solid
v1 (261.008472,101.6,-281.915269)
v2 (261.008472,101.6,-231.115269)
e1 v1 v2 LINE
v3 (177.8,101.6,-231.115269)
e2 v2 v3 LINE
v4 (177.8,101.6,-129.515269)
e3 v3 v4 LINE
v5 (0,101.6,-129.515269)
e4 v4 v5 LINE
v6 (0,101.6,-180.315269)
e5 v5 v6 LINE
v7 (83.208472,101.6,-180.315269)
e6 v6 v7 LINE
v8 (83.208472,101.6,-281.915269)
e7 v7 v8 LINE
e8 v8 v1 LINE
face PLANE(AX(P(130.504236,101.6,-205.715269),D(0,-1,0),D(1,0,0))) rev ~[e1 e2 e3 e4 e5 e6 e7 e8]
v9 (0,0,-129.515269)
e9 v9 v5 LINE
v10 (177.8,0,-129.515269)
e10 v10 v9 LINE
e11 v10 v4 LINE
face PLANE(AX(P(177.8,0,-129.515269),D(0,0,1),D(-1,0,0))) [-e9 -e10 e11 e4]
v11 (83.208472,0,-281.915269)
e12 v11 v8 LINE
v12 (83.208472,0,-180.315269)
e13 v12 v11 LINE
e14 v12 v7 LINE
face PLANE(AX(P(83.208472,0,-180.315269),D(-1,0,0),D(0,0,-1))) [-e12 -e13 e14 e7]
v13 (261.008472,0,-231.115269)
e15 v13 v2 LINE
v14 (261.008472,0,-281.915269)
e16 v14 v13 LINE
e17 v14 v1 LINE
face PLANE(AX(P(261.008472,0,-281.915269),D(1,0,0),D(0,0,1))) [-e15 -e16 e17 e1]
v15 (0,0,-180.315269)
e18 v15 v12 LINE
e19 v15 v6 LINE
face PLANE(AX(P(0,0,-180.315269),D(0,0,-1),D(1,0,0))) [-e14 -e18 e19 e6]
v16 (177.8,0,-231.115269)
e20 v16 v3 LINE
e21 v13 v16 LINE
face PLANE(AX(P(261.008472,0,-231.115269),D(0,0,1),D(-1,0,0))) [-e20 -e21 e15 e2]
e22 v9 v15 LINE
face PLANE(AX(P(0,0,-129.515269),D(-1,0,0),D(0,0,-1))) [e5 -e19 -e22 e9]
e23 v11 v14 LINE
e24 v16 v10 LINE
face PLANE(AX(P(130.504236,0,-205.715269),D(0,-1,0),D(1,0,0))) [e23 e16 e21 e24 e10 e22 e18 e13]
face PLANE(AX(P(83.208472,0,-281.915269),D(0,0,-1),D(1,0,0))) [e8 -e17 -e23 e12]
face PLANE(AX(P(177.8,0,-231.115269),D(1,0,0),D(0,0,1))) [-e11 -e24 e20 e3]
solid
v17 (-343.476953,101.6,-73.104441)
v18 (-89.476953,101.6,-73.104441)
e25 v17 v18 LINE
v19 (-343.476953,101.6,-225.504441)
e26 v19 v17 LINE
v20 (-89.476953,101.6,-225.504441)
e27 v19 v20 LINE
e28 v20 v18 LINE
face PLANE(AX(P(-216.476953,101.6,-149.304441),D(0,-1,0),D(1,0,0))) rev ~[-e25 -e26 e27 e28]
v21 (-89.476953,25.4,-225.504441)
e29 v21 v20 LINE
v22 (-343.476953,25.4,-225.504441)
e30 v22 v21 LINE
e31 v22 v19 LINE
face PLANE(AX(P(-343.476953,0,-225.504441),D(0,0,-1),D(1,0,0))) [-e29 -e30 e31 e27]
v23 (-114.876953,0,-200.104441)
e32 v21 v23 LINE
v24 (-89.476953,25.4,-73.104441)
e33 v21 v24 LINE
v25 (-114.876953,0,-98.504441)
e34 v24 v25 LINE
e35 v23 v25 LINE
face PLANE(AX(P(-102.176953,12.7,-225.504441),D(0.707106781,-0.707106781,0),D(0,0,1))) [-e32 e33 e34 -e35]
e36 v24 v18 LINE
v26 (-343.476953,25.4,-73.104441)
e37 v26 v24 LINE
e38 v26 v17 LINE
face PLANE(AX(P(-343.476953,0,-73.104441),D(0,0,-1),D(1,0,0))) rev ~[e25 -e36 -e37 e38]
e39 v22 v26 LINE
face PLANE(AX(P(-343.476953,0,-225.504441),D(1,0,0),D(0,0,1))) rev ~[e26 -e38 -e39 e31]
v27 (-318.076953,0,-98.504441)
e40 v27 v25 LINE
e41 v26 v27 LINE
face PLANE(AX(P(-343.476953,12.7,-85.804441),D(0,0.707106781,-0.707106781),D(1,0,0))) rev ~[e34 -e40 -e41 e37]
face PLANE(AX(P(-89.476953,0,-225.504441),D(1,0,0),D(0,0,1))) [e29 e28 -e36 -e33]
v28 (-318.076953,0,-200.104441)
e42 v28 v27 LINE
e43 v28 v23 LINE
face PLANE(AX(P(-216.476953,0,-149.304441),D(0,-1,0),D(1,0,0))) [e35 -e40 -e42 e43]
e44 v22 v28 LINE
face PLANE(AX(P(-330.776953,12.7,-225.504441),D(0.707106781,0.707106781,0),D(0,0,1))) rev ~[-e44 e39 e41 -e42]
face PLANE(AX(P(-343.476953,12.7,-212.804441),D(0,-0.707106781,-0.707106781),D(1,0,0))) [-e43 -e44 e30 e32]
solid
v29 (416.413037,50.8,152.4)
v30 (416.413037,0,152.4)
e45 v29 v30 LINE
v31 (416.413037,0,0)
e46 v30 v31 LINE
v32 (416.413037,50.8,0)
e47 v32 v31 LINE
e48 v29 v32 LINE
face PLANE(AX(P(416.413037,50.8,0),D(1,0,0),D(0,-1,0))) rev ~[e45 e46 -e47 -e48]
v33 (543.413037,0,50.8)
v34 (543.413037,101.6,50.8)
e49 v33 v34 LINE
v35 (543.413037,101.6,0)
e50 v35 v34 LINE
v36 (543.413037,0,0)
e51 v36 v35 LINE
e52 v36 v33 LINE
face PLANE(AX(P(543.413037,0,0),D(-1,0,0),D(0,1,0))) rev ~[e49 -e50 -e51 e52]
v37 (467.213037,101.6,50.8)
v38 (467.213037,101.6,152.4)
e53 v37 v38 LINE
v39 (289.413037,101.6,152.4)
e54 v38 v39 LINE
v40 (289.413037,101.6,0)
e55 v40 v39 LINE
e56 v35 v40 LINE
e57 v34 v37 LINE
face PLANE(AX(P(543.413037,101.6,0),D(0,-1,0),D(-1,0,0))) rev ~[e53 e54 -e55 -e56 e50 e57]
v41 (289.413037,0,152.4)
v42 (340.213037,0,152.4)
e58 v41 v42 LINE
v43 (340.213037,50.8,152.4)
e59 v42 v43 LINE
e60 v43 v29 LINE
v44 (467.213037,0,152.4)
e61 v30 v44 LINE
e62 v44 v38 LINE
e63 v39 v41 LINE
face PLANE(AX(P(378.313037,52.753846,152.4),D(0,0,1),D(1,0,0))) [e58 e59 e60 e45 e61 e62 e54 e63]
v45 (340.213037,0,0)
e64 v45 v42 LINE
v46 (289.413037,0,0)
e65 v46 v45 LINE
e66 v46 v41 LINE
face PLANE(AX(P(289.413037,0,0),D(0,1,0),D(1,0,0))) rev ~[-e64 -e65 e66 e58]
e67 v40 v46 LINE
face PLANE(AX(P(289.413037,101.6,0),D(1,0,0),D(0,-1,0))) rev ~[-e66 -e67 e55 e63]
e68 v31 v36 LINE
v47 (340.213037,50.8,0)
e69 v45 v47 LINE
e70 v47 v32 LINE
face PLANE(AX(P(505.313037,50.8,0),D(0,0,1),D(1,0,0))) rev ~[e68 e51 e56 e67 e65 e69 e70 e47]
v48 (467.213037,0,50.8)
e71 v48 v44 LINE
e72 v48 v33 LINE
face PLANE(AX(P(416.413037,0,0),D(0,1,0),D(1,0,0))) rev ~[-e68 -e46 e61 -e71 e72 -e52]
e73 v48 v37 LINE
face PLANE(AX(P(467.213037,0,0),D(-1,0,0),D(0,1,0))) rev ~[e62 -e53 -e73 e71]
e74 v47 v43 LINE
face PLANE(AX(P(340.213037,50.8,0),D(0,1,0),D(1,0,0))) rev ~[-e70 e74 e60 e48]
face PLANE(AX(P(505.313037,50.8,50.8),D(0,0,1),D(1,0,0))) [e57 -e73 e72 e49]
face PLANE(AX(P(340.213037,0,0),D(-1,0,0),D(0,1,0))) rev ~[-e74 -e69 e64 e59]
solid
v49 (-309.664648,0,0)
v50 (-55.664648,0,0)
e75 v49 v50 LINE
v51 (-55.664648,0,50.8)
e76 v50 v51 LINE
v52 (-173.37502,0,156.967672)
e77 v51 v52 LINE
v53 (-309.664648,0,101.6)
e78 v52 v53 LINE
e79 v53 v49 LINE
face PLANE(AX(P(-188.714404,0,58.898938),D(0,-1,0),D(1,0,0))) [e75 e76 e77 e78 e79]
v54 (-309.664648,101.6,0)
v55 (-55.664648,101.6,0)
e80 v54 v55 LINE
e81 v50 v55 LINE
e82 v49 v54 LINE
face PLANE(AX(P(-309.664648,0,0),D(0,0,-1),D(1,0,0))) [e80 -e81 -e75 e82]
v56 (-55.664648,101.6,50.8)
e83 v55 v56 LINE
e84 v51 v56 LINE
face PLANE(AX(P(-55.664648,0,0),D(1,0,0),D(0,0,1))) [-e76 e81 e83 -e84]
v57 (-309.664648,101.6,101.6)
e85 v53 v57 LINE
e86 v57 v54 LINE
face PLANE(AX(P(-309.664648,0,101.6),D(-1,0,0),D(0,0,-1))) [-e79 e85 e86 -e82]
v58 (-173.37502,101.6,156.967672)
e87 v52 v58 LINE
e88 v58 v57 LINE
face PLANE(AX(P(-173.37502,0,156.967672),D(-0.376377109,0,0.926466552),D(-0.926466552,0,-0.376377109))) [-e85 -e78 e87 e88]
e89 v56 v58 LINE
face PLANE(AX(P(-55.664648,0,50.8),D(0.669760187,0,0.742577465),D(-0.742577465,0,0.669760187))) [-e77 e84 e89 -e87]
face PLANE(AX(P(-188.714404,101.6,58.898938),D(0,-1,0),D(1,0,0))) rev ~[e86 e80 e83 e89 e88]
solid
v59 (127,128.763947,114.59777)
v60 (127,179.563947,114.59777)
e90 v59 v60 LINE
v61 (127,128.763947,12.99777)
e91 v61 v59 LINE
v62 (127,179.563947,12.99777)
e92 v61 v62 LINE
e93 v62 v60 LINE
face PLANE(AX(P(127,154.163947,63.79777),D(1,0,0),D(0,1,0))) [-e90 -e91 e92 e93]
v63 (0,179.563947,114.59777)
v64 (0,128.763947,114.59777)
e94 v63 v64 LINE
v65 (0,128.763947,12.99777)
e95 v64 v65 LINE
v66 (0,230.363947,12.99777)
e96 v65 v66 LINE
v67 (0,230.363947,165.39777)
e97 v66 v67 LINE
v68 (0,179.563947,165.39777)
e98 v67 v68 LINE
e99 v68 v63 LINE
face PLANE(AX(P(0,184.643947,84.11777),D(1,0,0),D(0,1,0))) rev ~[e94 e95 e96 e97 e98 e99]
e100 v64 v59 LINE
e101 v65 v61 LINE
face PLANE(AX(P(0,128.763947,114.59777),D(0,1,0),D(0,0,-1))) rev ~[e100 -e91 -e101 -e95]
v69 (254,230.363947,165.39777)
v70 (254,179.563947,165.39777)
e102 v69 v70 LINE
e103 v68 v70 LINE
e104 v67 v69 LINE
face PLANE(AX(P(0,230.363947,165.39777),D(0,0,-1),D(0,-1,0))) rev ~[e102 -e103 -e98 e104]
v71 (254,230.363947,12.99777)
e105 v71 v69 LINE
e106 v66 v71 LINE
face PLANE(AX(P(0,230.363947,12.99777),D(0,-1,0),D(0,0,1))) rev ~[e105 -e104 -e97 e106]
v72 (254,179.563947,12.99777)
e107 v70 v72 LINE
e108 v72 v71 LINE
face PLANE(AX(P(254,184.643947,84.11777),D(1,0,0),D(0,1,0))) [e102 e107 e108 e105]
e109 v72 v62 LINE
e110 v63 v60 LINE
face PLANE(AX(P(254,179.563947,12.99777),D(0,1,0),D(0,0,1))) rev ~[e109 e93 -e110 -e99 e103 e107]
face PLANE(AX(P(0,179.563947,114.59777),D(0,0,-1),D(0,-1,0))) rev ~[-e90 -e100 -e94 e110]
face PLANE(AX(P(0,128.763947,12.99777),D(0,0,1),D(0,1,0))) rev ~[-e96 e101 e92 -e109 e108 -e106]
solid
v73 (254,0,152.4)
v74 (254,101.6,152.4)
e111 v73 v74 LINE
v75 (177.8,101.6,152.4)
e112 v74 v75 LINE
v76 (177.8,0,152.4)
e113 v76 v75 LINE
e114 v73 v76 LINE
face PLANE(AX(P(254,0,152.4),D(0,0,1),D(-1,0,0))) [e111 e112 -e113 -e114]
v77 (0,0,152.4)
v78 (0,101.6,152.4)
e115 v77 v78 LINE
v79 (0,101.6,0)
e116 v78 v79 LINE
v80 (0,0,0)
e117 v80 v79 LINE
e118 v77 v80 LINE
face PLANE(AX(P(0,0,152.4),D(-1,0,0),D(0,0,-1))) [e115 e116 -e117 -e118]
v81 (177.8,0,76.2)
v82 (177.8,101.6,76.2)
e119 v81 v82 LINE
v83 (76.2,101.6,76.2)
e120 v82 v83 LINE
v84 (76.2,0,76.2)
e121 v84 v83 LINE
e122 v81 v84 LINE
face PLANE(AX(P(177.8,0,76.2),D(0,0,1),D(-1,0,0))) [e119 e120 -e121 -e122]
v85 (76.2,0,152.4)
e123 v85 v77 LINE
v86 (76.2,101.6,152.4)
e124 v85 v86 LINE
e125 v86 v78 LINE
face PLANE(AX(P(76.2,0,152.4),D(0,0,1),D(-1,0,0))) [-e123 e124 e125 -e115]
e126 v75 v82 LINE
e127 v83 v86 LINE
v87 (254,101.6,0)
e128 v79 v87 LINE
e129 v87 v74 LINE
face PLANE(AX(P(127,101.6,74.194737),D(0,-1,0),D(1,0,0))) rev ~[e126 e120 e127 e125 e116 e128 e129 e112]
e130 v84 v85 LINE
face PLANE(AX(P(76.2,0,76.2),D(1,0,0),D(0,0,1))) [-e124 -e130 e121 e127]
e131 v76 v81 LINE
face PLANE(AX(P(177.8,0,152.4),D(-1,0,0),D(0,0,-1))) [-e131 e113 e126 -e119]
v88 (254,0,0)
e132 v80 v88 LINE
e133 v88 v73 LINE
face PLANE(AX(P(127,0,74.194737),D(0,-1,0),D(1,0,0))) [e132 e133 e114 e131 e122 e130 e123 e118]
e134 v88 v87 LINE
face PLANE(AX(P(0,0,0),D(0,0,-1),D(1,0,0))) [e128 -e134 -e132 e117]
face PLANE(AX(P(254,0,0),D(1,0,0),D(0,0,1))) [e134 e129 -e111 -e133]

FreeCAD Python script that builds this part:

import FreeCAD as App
import Part
import Sketcher
from FreeCAD import Vector
Q = App.Units.Quantity


def edges_at(feature, points):
    """Names of the edges that pass closest to the given points."""
    edges = feature.Shape.Edges
    near = lambda p: min(range(len(edges)), key=lambda i: edges[i].distToShape(Part.Vertex(*p))[0])
    return sorted({f"Edge{near(p) + 1}" for p in points})


def add_polygon(sketch, points):
    """Adds a closed chain of lines whose ends are joined by coincident constraints."""
    first, n = sketch.GeometryCount, len(points)
    for a, b in zip(points, points[1:] + points[:1]):
        sketch.addGeometry(Part.LineSegment(App.Vector(*a, 0), App.Vector(*b, 0)), False)
    for i in range(n):
        sketch.addConstraint(Sketcher.Constraint("Coincident", first + i, 2, first + (i + 1) % n, 1))

doc = App.newDocument("Part")
body = doc.addObject("PartDesign::Body", "Body")

sketch1 = doc.addObject("Sketcher::SketchObject", "Sketch")
body.addObject(sketch1)
sketch1.AttachmentSupport = (doc.XZ_Plane, [""])
sketch1.MapMode = "FlatFace"
add_polygon(sketch1, [(0, 152), (0, 0), (254, 0), (254, 152), (178, 152), (178, 76), (76, 76), (76, 152)])
sketch1.addConstraint([
    Sketcher.Constraint("Vertical", 0),
    Sketcher.Constraint("Horizontal", 1),
    Sketcher.Constraint("Vertical", 2),
    Sketcher.Constraint("Horizontal", 3),
    Sketcher.Constraint("Vertical", 4),
    Sketcher.Constraint("Horizontal", 5),
    Sketcher.Constraint("Vertical", 6),
    Sketcher.Constraint("Horizontal", 7),
    Sketcher.Constraint("Coincident", 0, 2, -1, 1),
    Sketcher.Constraint("Horizontal", 3, 2, 6, 2),
    Sketcher.Constraint("Equal", 3, 7),
    Sketcher.Constraint("Equal", 7, 4),
    Sketcher.Constraint("DistanceX", 1, 1, 1, 2, Q("10 in")),
    Sketcher.Constraint("DistanceX", 3, 2, 3, 1, Q("3 in")),
    Sketcher.Constraint("DistanceY", 0, 2, 0, 1, Q("6 in")),
])
pad1 = doc.addObject("PartDesign::Pad", "Pad")
body.addObject(pad1)
pad1.Profile = sketch1
pad1.Length = Q("4 in")
pad1.Reversed = True
body2 = doc.addObject("PartDesign::Body", "Body001")

sketch2 = doc.addObject("Sketcher::SketchObject", "Sketch001")
body2.addObject(sketch2)
sketch2.AttachmentSupport = (doc.getObject("YZ_Plane001"), [""])
sketch2.MapMode = "FlatFace"
add_polygon(sketch2, [(230, 13), (230, 165), (180, 165), (180, 115), (129, 115), (129, 13)])
sketch2.addConstraint([
    Sketcher.Constraint("Vertical", 0),
    Sketcher.Constraint("Horizontal", 1),
    Sketcher.Constraint("Vertical", 2),
    Sketcher.Constraint("Horizontal", 3),
    Sketcher.Constraint("Vertical", 4),
    Sketcher.Constraint("Horizontal", 5),
    Sketcher.Constraint("Equal", 1, 3),
    Sketcher.Constraint("Equal", 3, 2),
    Sketcher.Constraint("Equal", 5, 4),
    Sketcher.Constraint("DistanceX", 1, 2, 1, 1, Q("2 in")),
    Sketcher.Constraint("DistanceY", -1, 1, 0, 2, 165.39777),
    Sketcher.Constraint("DistanceX", -1, 1, 0, 2, 230.363947),
])
pad2 = doc.addObject("PartDesign::Pad", "Pad001")
body2.addObject(pad2)
pad2.Profile = sketch2
pad2.Length = Q("10 in")

sketch3 = doc.addObject("Sketcher::SketchObject", "Sketch002")
body2.addObject(sketch3)
sketch3.AttachmentSupport = (doc.getObject("YZ_Plane001"), [""])
sketch3.MapMode = "FlatFace"
sketch3.AttachmentOffset = App.Placement(Vector(0, 0, 10 * 25.4), App.Rotation())
add_polygon(sketch3, [(129, 115), (129, 13), (180, 13), (180, 115)])
sketch3.addConstraint([
    Sketcher.Constraint("Vertical", 0),
    Sketcher.Constraint("Horizontal", 1),
    Sketcher.Constraint("Vertical", 2),
    Sketcher.Constraint("Horizontal", 3),
    Sketcher.Constraint("DistanceX", 1, 1, 1, 2, Q("2 in")),
    Sketcher.Constraint("DistanceY", 0, 2, 0, 1, Q("4 in")),
    Sketcher.Constraint("DistanceY", -1, 1, 0, 2, 12.99777),
    Sketcher.Constraint("DistanceX", -1, 1, 0, 2, 128.763947),
])
pocket1 = doc.addObject("PartDesign::Pocket", "Pocket")
body2.addObject(pocket1)
pocket1.Profile = sketch3
pocket1.Length = Q("5 in")
body3 = doc.addObject("PartDesign::Body", "Body002")

sketch4 = doc.addObject("Sketcher::SketchObject", "Sketch003")
body3.addObject(sketch4)
sketch4.AttachmentSupport = (doc.getObject("XY_Plane002"), [""])
sketch4.MapMode = "FlatFace"
add_polygon(sketch4, [(416, 0), (467, 0), (467, 102), (289, 102), (289, 0), (340, 0), (340, 51), (416, 51)])
sketch4.addConstraint([
    Sketcher.Constraint("Horizontal", 0),
    Sketcher.Constraint("Vertical", 1),
    Sketcher.Constraint("Horizontal", 2),
    Sketcher.Constraint("Vertical", 3),
    Sketcher.Constraint("Horizontal", 4),
    Sketcher.Constraint("Vertical", 5),
    Sketcher.Constraint("Horizontal", 6),
    Sketcher.Constraint("Vertical", 7),
    Sketcher.Constraint("PointOnObject", 0, 2, -1),
    Sketcher.Constraint("PointOnObject", 3, 2, -1),
    Sketcher.Constraint("Equal", 0, 4),
    Sketcher.Constraint("Equal", 4, 5),
    Sketcher.Constraint("DistanceX", 0, 1, 0, 2, Q("2 in")),
    Sketcher.Constraint("DistanceX", 2, 2, 2, 1, Q("7 in")),
    Sketcher.Constraint("DistanceY", 1, 1, 1, 2, Q("4 in")),
    Sketcher.Constraint("DistanceX", -1, 1, 0, 2, 467.213037),
])
pad3 = doc.addObject("PartDesign::Pad", "Pad002")
body3.addObject(pad3)
pad3.Profile = sketch4
pad3.Length = Q("6 in")

sketch5 = doc.addObject("Sketcher::SketchObject", "Sketch004")
body3.addObject(sketch5)
sketch5.AttachmentSupport = (doc.getObject("XY_Plane002"), [""])
sketch5.MapMode = "FlatFace"
add_polygon(sketch5, [(543, 0), (543, 102), (289, 102), (289, 0), (340, 0), (340, 51), (416, 51), (416, 0)])
sketch5.addConstraint([
    Sketcher.Constraint("Vertical", 0),
    Sketcher.Constraint("Horizontal", 1),
    Sketcher.Constraint("Vertical", 2),
    Sketcher.Constraint("Horizontal", 3),
    Sketcher.Constraint("Vertical", 4),
    Sketcher.Constraint("Horizontal", 5),
    Sketcher.Constraint("Vertical", 6),
    Sketcher.Constraint("Horizontal", 7),
    Sketcher.Constraint("PointOnObject", 2, 2, -1),
    Sketcher.Constraint("PointOnObject", 6, 2, -1),
    Sketcher.Constraint("Equal", 3, 4),
    Sketcher.Constraint("DistanceX", 1, 2, 1, 1, Q("10 in")),
    Sketcher.Constraint("DistanceX", 3, 1, 3, 2, Q("2 in")),
    Sketcher.Constraint("DistanceX", 5, 1, 5, 2, Q("3 in")),
    Sketcher.Constraint("DistanceY", 0, 1, 0, 2, Q("4 in")),
    Sketcher.Constraint("DistanceX", -1, 1, 0, 2, 543.413037),
])
pad4 = doc.addObject("PartDesign::Pad", "Pad003")
body3.addObject(pad4)
pad4.Profile = sketch5
pad4.Length = Q("2 in")
body4 = doc.addObject("PartDesign::Body", "Body003")

sketch6 = doc.addObject("Sketcher::SketchObject", "Sketch005")
body4.addObject(sketch6)
sketch6.AttachmentSupport = (doc.getObject("XZ_Plane003"), [""])
sketch6.MapMode = "FlatFace"
add_polygon(sketch6, [(178, -130), (0, -130), (0, -180), (83, -180), (83, -282), (261, -282), (261, -231), (178, -231)])
sketch6.addConstraint([
    Sketcher.Constraint("Horizontal", 0),
    Sketcher.Constraint("Vertical", 1),
    Sketcher.Constraint("Horizontal", 2),
    Sketcher.Constraint("Vertical", 3),
    Sketcher.Constraint("Horizontal", 4),
    Sketcher.Constraint("Vertical", 5),
    Sketcher.Constraint("Horizontal", 6),
    Sketcher.Constraint("Vertical", 7),
    Sketcher.Constraint("PointOnObject", 0, 2, -2),
    Sketcher.Constraint("Equal", 0, 4),
    Sketcher.Constraint("Equal", 1, 5),
    Sketcher.Constraint("DistanceX", 0, 2, 0, 1, Q("7 in")),
    Sketcher.Constraint("DistanceY", 1, 2, 1, 1, Q("2 in")),
    Sketcher.Constraint("DistanceY", 3, 2, 3, 1, Q("4 in")),
    Sketcher.Constraint("DistanceX", 2, 1, 2, 2, 83.208472),
    Sketcher.Constraint("DistanceY", 0, 2, -1, 1, 129.515269),
])
pad5 = doc.addObject("PartDesign::Pad", "Pad004")
body4.addObject(pad5)
pad5.Profile = sketch6
pad5.Length = Q("4 in")
pad5.Reversed = True
body5 = doc.addObject("PartDesign::Body", "Body004")

sketch7 = doc.addObject("Sketcher::SketchObject", "Sketch006")
body5.addObject(sketch7)
sketch7.AttachmentSupport = (doc.getObject("XZ_Plane004"), [""])
sketch7.MapMode = "FlatFace"
add_polygon(sketch7, [(-310, 0), (-56, 0), (-56, 51), (-173, 157), (-310, 102)])
sketch7.addConstraint([
    Sketcher.Constraint("Horizontal", 0),
    Sketcher.Constraint("Vertical", 1),
    Sketcher.Constraint("Vertical", 4),
    Sketcher.Constraint("PointOnObject", 0, 2, -1),
    Sketcher.Constraint("DistanceX", 0, 1, 0, 2, Q("10 in")),
    Sketcher.Constraint("DistanceY", 1, 1, 1, 2, Q("2 in")),
    Sketcher.Constraint("DistanceY", 4, 2, 4, 1, Q("4 in")),
    Sketcher.Constraint("Distance", 2, 158.51595),
    Sketcher.Constraint("DistanceX", 2, 2, -1, 1, 173.37502),
    Sketcher.Constraint("DistanceY", -1, 1, 2, 2, 156.967672),
])
pad6 = doc.addObject("PartDesign::Pad", "Pad005")
body5.addObject(pad6)
pad6.Profile = sketch7
pad6.Length = Q("4 in")
pad6.Reversed = True
body6 = doc.addObject("PartDesign::Body", "Body005")

sketch8 = doc.addObject("Sketcher::SketchObject", "Sketch007")
body6.addObject(sketch8)
sketch8.AttachmentSupport = (doc.getObject("XZ_Plane005"), [""])
sketch8.MapMode = "FlatFace"
add_polygon(sketch8, [(-343, -73), (-343, -226), (-89, -226), (-89, -73)])
sketch8.addConstraint([
    Sketcher.Constraint("Vertical", 0),
    Sketcher.Constraint("Horizontal", 1),
    Sketcher.Constraint("Vertical", 2),
    Sketcher.Constraint("Horizontal", 3),
    Sketcher.Constraint("DistanceX", 1, 1, 1, 2, Q("10 in")),
    Sketcher.Constraint("DistanceY", 0, 2, 0, 1, Q("6 in")),
    Sketcher.Constraint("DistanceY", 0, 2, -1, 1, 225.504441),
    Sketcher.Constraint("DistanceX", 0, 2, -1, 1, 343.476953),
])
pad7 = doc.addObject("PartDesign::Pad", "Pad006")
body6.addObject(pad7)
pad7.Profile = sketch8
pad7.Length = Q("4 in")
pad7.Reversed = True
doc.recompute()

chamfer = doc.addObject("PartDesign::Chamfer", "Chamfer")
body6.addObject(chamfer)
chamfer.Base = (pad7, edges_at(pad7, [
    (-89.477, 0, -149.304),
    (-216.477, 0, -73.104),
    (-343.477, 0, -149.304),
    (-216.477, 0, -225.504),
]))
chamfer.Size = Q("1 in")

doc.recompute()
